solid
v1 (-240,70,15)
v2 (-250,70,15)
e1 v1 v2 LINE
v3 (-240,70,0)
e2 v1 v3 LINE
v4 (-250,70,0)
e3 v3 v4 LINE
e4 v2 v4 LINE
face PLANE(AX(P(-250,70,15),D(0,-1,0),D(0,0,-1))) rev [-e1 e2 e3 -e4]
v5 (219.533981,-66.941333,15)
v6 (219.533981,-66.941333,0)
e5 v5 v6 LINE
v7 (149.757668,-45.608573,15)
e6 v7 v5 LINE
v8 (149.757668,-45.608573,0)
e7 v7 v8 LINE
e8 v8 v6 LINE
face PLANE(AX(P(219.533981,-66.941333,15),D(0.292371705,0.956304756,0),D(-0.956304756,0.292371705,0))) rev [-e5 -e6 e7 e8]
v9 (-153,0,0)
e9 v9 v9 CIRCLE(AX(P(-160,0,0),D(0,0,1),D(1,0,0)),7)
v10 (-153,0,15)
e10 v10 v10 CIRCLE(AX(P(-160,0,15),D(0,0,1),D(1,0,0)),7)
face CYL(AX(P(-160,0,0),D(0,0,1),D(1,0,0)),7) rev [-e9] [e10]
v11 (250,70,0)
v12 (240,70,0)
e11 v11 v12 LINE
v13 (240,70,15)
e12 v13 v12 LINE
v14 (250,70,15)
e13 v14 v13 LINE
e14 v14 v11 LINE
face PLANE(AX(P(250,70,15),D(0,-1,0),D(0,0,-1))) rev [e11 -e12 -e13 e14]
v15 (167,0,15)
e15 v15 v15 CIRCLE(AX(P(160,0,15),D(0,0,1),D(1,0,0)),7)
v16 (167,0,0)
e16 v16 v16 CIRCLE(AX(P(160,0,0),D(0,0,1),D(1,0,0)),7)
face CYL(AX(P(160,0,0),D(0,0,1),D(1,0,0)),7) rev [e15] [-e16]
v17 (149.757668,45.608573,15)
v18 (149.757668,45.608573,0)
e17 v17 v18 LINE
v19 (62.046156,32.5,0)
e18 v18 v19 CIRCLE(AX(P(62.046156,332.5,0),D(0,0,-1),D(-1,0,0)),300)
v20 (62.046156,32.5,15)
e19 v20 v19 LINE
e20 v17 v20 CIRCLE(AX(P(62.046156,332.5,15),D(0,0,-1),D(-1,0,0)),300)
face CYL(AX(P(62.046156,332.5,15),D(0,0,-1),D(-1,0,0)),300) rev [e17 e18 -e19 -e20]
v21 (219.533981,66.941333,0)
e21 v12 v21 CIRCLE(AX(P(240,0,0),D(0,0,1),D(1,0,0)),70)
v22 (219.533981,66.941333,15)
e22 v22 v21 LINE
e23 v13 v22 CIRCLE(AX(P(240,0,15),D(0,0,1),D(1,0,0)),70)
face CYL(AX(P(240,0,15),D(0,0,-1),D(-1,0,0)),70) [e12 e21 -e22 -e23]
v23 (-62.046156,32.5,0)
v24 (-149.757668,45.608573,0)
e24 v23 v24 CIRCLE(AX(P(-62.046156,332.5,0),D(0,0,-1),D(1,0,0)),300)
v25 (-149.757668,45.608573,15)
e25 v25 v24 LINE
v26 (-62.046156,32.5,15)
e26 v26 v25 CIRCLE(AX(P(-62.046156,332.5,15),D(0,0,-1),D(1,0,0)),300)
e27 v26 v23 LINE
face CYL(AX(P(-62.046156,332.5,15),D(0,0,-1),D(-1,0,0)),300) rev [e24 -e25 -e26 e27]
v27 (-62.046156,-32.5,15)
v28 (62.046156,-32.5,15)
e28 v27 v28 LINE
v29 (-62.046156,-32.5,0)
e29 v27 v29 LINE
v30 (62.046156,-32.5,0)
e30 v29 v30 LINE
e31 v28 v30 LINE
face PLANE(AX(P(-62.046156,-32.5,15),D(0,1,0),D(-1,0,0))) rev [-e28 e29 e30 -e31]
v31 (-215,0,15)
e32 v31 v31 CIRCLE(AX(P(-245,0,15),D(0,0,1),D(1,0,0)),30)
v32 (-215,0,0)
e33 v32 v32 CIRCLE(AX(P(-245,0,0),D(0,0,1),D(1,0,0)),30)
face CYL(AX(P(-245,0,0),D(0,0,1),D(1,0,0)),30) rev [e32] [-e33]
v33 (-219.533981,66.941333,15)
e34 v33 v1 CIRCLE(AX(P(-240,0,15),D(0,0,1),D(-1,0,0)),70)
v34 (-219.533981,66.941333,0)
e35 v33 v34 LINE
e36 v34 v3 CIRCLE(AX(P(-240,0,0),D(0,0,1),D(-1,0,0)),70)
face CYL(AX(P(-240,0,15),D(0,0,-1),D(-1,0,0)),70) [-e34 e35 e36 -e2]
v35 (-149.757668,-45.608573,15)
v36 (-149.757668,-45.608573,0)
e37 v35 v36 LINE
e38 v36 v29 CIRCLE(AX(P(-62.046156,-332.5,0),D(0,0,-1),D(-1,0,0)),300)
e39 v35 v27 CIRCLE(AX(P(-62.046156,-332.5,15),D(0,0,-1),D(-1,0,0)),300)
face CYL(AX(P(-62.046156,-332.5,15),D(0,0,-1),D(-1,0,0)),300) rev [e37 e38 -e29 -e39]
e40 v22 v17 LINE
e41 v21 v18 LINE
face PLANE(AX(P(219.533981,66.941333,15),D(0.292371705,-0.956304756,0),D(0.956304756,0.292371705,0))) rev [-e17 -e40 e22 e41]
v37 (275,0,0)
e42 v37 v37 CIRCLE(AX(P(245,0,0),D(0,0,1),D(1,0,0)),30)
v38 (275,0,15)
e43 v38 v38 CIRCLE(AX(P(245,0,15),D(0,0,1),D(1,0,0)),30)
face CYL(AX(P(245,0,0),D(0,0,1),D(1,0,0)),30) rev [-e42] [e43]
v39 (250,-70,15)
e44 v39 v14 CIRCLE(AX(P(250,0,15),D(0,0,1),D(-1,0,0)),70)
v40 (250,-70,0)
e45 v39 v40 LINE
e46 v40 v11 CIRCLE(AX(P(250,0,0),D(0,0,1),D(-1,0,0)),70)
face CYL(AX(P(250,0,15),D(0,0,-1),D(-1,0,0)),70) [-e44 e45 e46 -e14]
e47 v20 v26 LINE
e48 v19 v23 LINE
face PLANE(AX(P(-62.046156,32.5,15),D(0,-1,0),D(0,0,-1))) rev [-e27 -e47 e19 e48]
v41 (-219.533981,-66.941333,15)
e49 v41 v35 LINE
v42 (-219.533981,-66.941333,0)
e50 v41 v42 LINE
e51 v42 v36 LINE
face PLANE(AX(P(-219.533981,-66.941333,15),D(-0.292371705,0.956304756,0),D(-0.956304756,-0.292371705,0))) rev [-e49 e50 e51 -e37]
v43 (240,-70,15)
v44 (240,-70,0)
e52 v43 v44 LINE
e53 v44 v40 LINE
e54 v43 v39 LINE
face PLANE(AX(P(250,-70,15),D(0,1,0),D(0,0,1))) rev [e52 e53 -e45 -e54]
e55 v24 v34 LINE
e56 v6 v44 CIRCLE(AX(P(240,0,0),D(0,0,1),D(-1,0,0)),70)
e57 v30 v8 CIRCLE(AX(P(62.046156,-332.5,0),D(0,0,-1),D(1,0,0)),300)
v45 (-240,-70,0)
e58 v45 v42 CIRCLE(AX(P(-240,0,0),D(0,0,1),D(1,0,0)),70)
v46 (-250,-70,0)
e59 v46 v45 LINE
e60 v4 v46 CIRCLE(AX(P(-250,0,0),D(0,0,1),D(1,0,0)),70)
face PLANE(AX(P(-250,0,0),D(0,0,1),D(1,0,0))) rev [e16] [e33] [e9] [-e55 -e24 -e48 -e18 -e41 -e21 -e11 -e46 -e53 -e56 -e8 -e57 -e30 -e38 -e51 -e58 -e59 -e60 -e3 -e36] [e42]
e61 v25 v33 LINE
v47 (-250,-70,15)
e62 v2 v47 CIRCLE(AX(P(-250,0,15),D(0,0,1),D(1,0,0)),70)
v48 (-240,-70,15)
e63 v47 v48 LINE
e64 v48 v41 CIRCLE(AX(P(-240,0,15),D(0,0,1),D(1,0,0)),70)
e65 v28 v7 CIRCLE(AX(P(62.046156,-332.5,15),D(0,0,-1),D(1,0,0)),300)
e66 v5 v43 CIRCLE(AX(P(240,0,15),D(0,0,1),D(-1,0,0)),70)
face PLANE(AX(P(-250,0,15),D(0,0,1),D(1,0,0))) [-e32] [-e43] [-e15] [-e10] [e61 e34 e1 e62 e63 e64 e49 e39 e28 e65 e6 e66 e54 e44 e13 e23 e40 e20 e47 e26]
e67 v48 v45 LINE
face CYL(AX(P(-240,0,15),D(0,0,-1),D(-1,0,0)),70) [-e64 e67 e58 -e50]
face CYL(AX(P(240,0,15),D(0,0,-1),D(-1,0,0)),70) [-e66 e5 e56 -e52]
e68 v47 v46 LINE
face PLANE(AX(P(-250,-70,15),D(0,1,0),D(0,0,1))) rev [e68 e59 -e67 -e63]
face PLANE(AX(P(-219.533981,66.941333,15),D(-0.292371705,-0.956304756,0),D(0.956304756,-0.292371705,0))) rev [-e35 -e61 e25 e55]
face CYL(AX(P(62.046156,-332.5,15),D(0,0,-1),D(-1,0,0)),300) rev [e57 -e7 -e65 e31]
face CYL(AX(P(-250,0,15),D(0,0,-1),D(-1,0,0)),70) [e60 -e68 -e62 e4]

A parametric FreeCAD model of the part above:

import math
import FreeCAD as App
import Part
import Sketcher

V = App.Vector
Q = App.Units.Quantity

doc = App.newDocument("Part")
body = doc.addObject("PartDesign::Body", "Body")

sketch1 = body.newObject("Sketcher::SketchObject", "Sketch")
sketch1.AttachmentSupport = (doc.getObject("XY_Plane"), [""])
sketch1.MapMode = "FlatFace"
sketch1.addGeometry([
    Part.LineSegment(V(-240, 70, 0), V(-250, 70, 0)),
    Part.ArcOfCircle(Part.Circle(V(-250, 0, 0), V(0, 0, 1), 70), math.radians(90), math.radians(270)),
    Part.LineSegment(V(-250, -70, 0), V(-240, -70, 0)),
    Part.ArcOfCircle(Part.Circle(V(-240, 0, 0), V(0, 0, 1), 70), math.radians(-90), math.radians(-73)),
    Part.LineSegment(V(-219.533981, -66.941333, 0), V(-149.757668, -45.608573, 0)),
    Part.ArcOfCircle(Part.Circle(V(-62.046156, -332.5, 0), V(0, 0, 1), 300), math.radians(90), math.radians(107)),
    Part.LineSegment(V(-62.046156, -32.5, 0), V(62.046156, -32.5, 0)),
    Part.ArcOfCircle(Part.Circle(V(62.046156, -332.5, 0), V(0, 0, 1), 300), math.radians(73), math.radians(90)),
    Part.LineSegment(V(149.757668, -45.608573, 0), V(219.533981, -66.941333, 0)),
    Part.ArcOfCircle(Part.Circle(V(240, 0, 0), V(0, 0, 1), 70), math.radians(-107), math.radians(-90)),
    Part.LineSegment(V(240, -70, 0), V(250, -70, 0)),
    Part.ArcOfCircle(Part.Circle(V(250, 0, 0), V(0, 0, 1), 70), math.radians(-90), math.radians(90)),
    Part.LineSegment(V(250, 70, 0), V(240, 70, 0)),
    Part.ArcOfCircle(Part.Circle(V(240, 0, 0), V(0, 0, 1), 70), math.radians(90), math.radians(107)),
    Part.LineSegment(V(219.533981, 66.941333, 0), V(149.757668, 45.608573, 0)),
    Part.ArcOfCircle(Part.Circle(V(62.046156, 332.5, 0), V(0, 0, 1), 300), math.radians(-90), math.radians(-73)),
    Part.LineSegment(V(62.046156, 32.5, 0), V(-62.046156, 32.5, 0)),
    Part.ArcOfCircle(Part.Circle(V(-62.046156, 332.5, 0), V(0, 0, 1), 300), math.radians(-107), math.radians(-90)),
    Part.LineSegment(V(-149.757668, 45.608573, 0), V(-219.533981, 66.941333, 0)),
    Part.ArcOfCircle(Part.Circle(V(-240, 0, 0), V(0, 0, 1), 70), math.radians(73), math.radians(90)),
], False)
sketch1.addConstraint([
    Sketcher.Constraint("Tangent", 0, 2, 1, 1),
    Sketcher.Constraint("Tangent", 1, 2, 2, 1),
    Sketcher.Constraint("Tangent", 2, 2, 3, 1),
    Sketcher.Constraint("Tangent", 3, 2, 4, 1),
    Sketcher.Constraint("Tangent", 4, 2, 5, 2),
    Sketcher.Constraint("Tangent", 5, 1, 6, 1),
    Sketcher.Constraint("Tangent", 6, 2, 7, 2),
    Sketcher.Constraint("Tangent", 7, 1, 8, 1),
    Sketcher.Constraint("Tangent", 8, 2, 9, 1),
    Sketcher.Constraint("Tangent", 9, 2, 10, 1),
    Sketcher.Constraint("Tangent", 10, 2, 11, 1),
    Sketcher.Constraint("Tangent", 11, 2, 12, 1),
    Sketcher.Constraint("Tangent", 12, 2, 13, 1),
    Sketcher.Constraint("Tangent", 13, 2, 14, 1),
    Sketcher.Constraint("Tangent", 14, 2, 15, 2),
    Sketcher.Constraint("Tangent", 15, 1, 16, 1),
    Sketcher.Constraint("Tangent", 16, 2, 17, 2),
    Sketcher.Constraint("Tangent", 17, 1, 18, 1),
    Sketcher.Constraint("Tangent", 18, 2, 19, 1),
    Sketcher.Constraint("Tangent", 19, 2, 0, 1),
    Sketcher.Constraint("Horizontal", 0),
    Sketcher.Constraint("Horizontal", 2),
    Sketcher.Constraint("Horizontal", 6),
    Sketcher.Constraint("Horizontal", 10),
    Sketcher.Constraint("Horizontal", 12),
    Sketcher.Constraint("Horizontal", 16),
    Sketcher.Constraint("Coincident", 13, 3, 9, 3),
    Sketcher.Constraint("Coincident", 19, 3, 3, 3),
    Sketcher.Constraint("Equal", 1, 3),
    Sketcher.Constraint("Equal", 5, 7),
    Sketcher.Constraint("Equal", 3, 9),
    Sketcher.Constraint("Equal", 9, 11),
    Sketcher.Constraint("Equal", 7, 15),
    Sketcher.Constraint("Equal", 15, 17),
    Sketcher.Constraint("Symmetric", 3, 3, 9, 3, -1, 1),
    Sketcher.Constraint("Symmetric", 5, 3, 15, 3, -1, 1),
    Sketcher.Constraint("Symmetric", 1, 3, 11, 3, -2),
    Sketcher.Constraint("Parallel", 8, 18),
    Sketcher.Constraint("Vertical", 7, 3, 15, 3),
    Sketcher.Constraint("Radius", 1, Q("70 mm")),
    Sketcher.Constraint("Radius", 5, Q("300 mm")),
    Sketcher.Constraint("DistanceX", 0, 2, 0, 1, Q("10 mm")),
    Sketcher.Constraint("Angle", 4, Q("17 deg")),
    Sketcher.Constraint("DistanceX", 1, 3, -1, 1, Q("250 mm")),
    Sketcher.Constraint("DistanceY", 6, 2, 15, 1, Q("65 mm")),
])
pad1 = body.newObject("PartDesign::Pad", "Pad")
pad1.Profile = sketch1
pad1.Length = 15

sketch2 = body.newObject("Sketcher::SketchObject", "Sketch001")
sketch2.AttachmentSupport = (doc.getObject("XY_Plane"), [""])
sketch2.MapMode = "FlatFace"
sketch2.AttachmentOffset = App.Placement(V(0, 0, 15), App.Rotation())
sketch2.addGeometry([
    Part.Circle(V(245, 0, 0), V(0, 0, 1), 30),
    Part.Circle(V(-245, 0, 0), V(0, 0, 1), 30),
], False)
sketch2.addConstraint([
    Sketcher.Constraint("Equal", 0, 1),
    Sketcher.Constraint("Symmetric", 0, 3, 1, 3, -1, 1),
    Sketcher.Constraint("PointOnObject", 0, 3, -1),
    Sketcher.Constraint("Diameter", 0, Q("60 mm")),
    Sketcher.Constraint("DistanceX", -1, 1, 0, 3, Q("245 mm")),
])
pocket1 = body.newObject("PartDesign::Pocket", "Pocket")
pocket1.Profile = sketch2
pocket1.Type = "ThroughAll"

sketch3 = body.newObject("Sketcher::SketchObject", "Sketch002")
sketch3.AttachmentSupport = (doc.getObject("XY_Plane"), [""])
sketch3.MapMode = "FlatFace"
sketch3.AttachmentOffset = App.Placement(V(0, 0, 15), App.Rotation())
sketch3.addGeometry([
    Part.Circle(V(160, 0, 0), V(0, 0, 1), 7),
    Part.Circle(V(-160, 0, 0), V(0, 0, 1), 7),
], False)
sketch3.addConstraint([
    Sketcher.Constraint("Equal", 0, 1),
    Sketcher.Constraint("Symmetric", 0, 3, 1, 3, -1, 1),
    Sketcher.Constraint("PointOnObject", 0, 3, -1),
    Sketcher.Constraint("Diameter", 0, Q("14 mm")),
    Sketcher.Constraint("DistanceX", -1, 1, 0, 3, Q("160 mm")),
])
pocket2 = body.newObject("PartDesign::Pocket", "Pocket001")
pocket2.Profile = sketch3
pocket2.Type = "ThroughAll"

doc.recompute()
